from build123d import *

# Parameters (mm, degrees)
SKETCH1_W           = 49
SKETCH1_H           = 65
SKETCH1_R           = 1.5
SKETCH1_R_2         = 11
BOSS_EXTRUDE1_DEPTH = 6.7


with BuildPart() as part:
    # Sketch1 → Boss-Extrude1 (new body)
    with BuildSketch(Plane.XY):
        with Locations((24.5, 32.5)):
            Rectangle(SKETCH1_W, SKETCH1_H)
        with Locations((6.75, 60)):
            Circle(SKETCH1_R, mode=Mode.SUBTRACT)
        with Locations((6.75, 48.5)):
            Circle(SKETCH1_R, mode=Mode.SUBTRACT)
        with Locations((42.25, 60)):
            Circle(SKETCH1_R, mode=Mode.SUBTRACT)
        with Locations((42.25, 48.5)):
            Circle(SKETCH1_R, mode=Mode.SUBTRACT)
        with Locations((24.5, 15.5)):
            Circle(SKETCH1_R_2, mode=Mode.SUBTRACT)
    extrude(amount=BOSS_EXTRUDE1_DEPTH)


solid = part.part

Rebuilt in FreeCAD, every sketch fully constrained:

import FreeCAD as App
import Part
import Sketcher
Q = App.Units.Quantity

doc = App.newDocument("Part")
body = doc.addObject("PartDesign::Body", "Body")

sketch1 = doc.addObject("Sketcher::SketchObject", "Sketch")
body.addObject(sketch1)
sketch1.AttachmentSupport = (doc.XY_Plane, [""])
sketch1.MapMode = "FlatFace"
sketch1.addGeometry(Part.LineSegment(App.Vector(0, 65, 0), App.Vector(0, 0, 0)), False)
sketch1.addGeometry(Part.LineSegment(App.Vector(0, 0, 0), App.Vector(49, 0, 0)), False)
sketch1.addGeometry(Part.LineSegment(App.Vector(49, 0, 0), App.Vector(49, 65, 0)), False)
sketch1.addGeometry(Part.LineSegment(App.Vector(49, 65, 0), App.Vector(0, 65, 0)), False)
sketch1.addGeometry(Part.Circle(App.Vector(24.5, 15.5, 0), App.Vector(0, 0, 1), 11), False)
sketch1.addGeometry(Part.Circle(App.Vector(6.8, 48.5, 0), App.Vector(0, 0, 1), 1.5), False)
sketch1.addGeometry(Part.Circle(App.Vector(6.8, 60, 0), App.Vector(0, 0, 1), 1.5), False)
sketch1.addGeometry(Part.Circle(App.Vector(42.2, 48.5, 0), App.Vector(0, 0, 1), 1.5), False)
sketch1.addGeometry(Part.Circle(App.Vector(42.2, 60, 0), App.Vector(0, 0, 1), 1.5), False)
sketch1.addConstraint(Sketcher.Constraint("Coincident", 0, 2, 1, 1))
sketch1.addConstraint(Sketcher.Constraint("Coincident", 1, 2, 2, 1))
sketch1.addConstraint(Sketcher.Constraint("Coincident", 2, 2, 3, 1))
sketch1.addConstraint(Sketcher.Constraint("Coincident", 3, 2, 0, 1))
sketch1.addConstraint(Sketcher.Constraint("Vertical", 0))
sketch1.addConstraint(Sketcher.Constraint("Horizontal", 1))
sketch1.addConstraint(Sketcher.Constraint("Vertical", 2))
sketch1.addConstraint(Sketcher.Constraint("Horizontal", 3))
sketch1.addConstraint(Sketcher.Constraint("Coincident", 0, 2, -1, 1))
sketch1.addConstraint(Sketcher.Constraint("Equal", 5, 6))
sketch1.addConstraint(Sketcher.Constraint("Equal", 6, 7))
sketch1.addConstraint(Sketcher.Constraint("Equal", 7, 8))
sketch1.addConstraint(Sketcher.Constraint("Horizontal", 5, 3, 7, 3))
sketch1.addConstraint(Sketcher.Constraint("Horizontal", 6, 3, 8, 3))
sketch1.addConstraint(Sketcher.Constraint("Vertical", 5, 3, 6, 3))
sketch1.addConstraint(Sketcher.Constraint("Vertical", 7, 3, 8, 3))
sketch1.addConstraint(Sketcher.Constraint("Diameter", 4, Q("22 mm")))
sketch1.addConstraint(Sketcher.Constraint("Diameter", 5, Q("3 mm")))
sketch1.addConstraint(Sketcher.Constraint("DistanceX", 1, 1, 1, 2, Q("49 mm")))
sketch1.addConstraint(Sketcher.Constraint("DistanceY", 0, 2, 0, 1, Q("65 mm")))
sketch1.addConstraint(Sketcher.Constraint("DistanceY", -1, 1, 6, 3, Q("60 mm")))
sketch1.addConstraint(Sketcher.Constraint("DistanceY", 4, 3, 5, 3, Q("33 mm")))
sketch1.addConstraint(Sketcher.Constraint("DistanceX", -1, 1, 4, 3, Q("24.5 mm")))
sketch1.addConstraint(Sketcher.Constraint("DistanceY", -1, 1, 4, 3, Q("15.5 mm")))
sketch1.addConstraint(Sketcher.Constraint("DistanceX", 5, 3, 7, 3, Q("35.5 mm")))
sketch1.addConstraint(Sketcher.Constraint("DistanceX", -1, 1, 5, 3, Q("6.75 mm")))
pad1 = doc.addObject("PartDesign::Pad", "Pad")
body.addObject(pad1)
pad1.Profile = sketch1
pad1.Length = 6.7

doc.recompute()
